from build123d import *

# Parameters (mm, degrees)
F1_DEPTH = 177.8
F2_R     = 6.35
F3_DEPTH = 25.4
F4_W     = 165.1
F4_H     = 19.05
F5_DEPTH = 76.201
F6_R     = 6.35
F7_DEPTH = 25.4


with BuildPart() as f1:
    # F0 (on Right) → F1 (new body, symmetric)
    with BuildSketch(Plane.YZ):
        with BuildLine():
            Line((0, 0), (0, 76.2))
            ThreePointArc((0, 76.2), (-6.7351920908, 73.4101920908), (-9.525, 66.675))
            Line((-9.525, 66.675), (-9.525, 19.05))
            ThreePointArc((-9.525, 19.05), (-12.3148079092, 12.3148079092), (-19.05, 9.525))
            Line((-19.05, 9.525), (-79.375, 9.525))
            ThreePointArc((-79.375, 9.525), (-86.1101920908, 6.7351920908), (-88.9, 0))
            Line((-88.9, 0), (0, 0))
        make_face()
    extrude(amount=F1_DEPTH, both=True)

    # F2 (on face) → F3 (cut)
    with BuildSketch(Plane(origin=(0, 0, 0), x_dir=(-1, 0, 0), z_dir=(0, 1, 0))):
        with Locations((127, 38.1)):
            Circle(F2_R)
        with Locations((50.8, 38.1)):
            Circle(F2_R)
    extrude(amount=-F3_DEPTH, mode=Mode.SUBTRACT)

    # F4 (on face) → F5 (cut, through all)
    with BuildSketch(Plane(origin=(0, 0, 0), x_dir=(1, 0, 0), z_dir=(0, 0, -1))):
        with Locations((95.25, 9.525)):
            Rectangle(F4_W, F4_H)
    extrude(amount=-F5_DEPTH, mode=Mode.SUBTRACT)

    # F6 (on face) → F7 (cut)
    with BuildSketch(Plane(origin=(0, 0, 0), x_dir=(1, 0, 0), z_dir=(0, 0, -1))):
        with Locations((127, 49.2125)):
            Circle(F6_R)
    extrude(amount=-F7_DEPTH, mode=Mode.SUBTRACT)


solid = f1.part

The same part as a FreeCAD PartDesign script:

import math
import FreeCAD as App
import Part
import Sketcher

V = App.Vector
Q = App.Units.Quantity

doc = App.newDocument("Part")
body = doc.addObject("PartDesign::Body", "Body")

# Sketch on YZ plane
sketch1 = doc.addObject("Sketcher::SketchObject", "Sketch")
body.addObject(sketch1)
sketch1.AttachmentSupport = (doc.YZ_Plane, [""])
sketch1.MapMode = "FlatFace"
sketch1.addGeometry([
    Part.LineSegment(V(0, 0, 0), V(0, 76, 0)),  # 0
    Part.ArcOfCircle(Part.Circle(V(0, 67, 0), V(0, 0, 1), 10), math.radians(90), math.radians(180)),  # 1
    Part.LineSegment(V(-10, 67, 0), V(-10, 19, 0)),  # 2
    Part.ArcOfCircle(Part.Circle(V(-19, 19, 0), V(0, 0, 1), 10), math.radians(-90), math.radians(0)),  # 3
    Part.LineSegment(V(-19, 10, 0), V(-79, 10, 0)),  # 4
    Part.ArcOfCircle(Part.Circle(V(-79, 0, 0), V(0, 0, 1), 10), math.radians(90), math.radians(180)),  # 5
    Part.LineSegment(V(-89, 0, 0), V(0, 0, 0)),  # 6
], False)
sketch1.addConstraint([
    Sketcher.Constraint("Coincident", 0, 2, 1, 1),
    Sketcher.Constraint("Tangent", 1, 2, 2, 1),
    Sketcher.Constraint("Tangent", 2, 2, 3, 2),
    Sketcher.Constraint("Tangent", 3, 1, 4, 1),
    Sketcher.Constraint("Tangent", 4, 2, 5, 1),
    Sketcher.Constraint("Coincident", 5, 2, 6, 1),
    Sketcher.Constraint("Coincident", 6, 2, 0, 1),
    Sketcher.Constraint("Vertical", 0),
    Sketcher.Constraint("Vertical", 2),
    Sketcher.Constraint("Horizontal", 4),
    Sketcher.Constraint("Horizontal", 6),
    Sketcher.Constraint("Coincident", 6, 2, -1, 1),
    Sketcher.Constraint("Equal", 1, 3),
    Sketcher.Constraint("Equal", 3, 5),
    Sketcher.Constraint("PointOnObject", 1, 3, -2),
    Sketcher.Constraint("PointOnObject", 5, 3, -1),
    Sketcher.Constraint("DistanceY", 0, 1, 0, 2, Q("3 in")),
    Sketcher.Constraint("DistanceX", 6, 1, 6, 2, Q("3.5 in")),
    Sketcher.Constraint("Radius", 1, Q("0.375 in")),
])
pad1 = doc.addObject("PartDesign::Pad", "Pad")
body.addObject(pad1)
pad1.Profile = sketch1
pad1.Length = Q("14 in")
pad1.Midplane = True

# Sketch on XZ plane
sketch2 = doc.addObject("Sketcher::SketchObject", "Sketch001")
body.addObject(sketch2)
sketch2.AttachmentSupport = (doc.XZ_Plane, [""])
sketch2.MapMode = "FlatFace"
sketch2.addGeometry([
    Part.Circle(V(-127, 38, 0), V(0, 0, 1), 6),
    Part.Circle(V(-51, 38, 0), V(0, 0, 1), 6),
], False)
sketch2.addConstraint([
    Sketcher.Constraint("Equal", 0, 1),
    Sketcher.Constraint("Horizontal", 0, 3, 1, 3),
    Sketcher.Constraint("Diameter", 0, Q("0.5 in")),
    Sketcher.Constraint("DistanceX", 0, 3, -1, 1, Q("5 in")),
    Sketcher.Constraint("DistanceX", 1, 3, -1, 1, Q("2 in")),
    Sketcher.Constraint("DistanceY", -1, 1, 0, 3, Q("1.5 in")),
])
pocket1 = doc.addObject("PartDesign::Pocket", "Pocket")
body.addObject(pocket1)
pocket1.Profile = sketch2
pocket1.Length = Q("1 in")
pocket1.Reversed = True

# Sketch on XY plane
sketch3 = doc.addObject("Sketcher::SketchObject", "Sketch002")
body.addObject(sketch3)
sketch3.AttachmentSupport = (doc.XY_Plane, [""])
sketch3.MapMode = "FlatFace"
sketch3.addGeometry([
    Part.LineSegment(V(13, -19, 0), V(13, 0, 0)),
    Part.LineSegment(V(13, 0, 0), V(178, 0, 0)),
    Part.LineSegment(V(178, 0, 0), V(178, -19, 0)),
    Part.LineSegment(V(178, -19, 0), V(13, -19, 0)),
], False)
sketch3.addConstraint([
    Sketcher.Constraint("Coincident", 0, 2, 1, 1),
    Sketcher.Constraint("Coincident", 1, 2, 2, 1),
    Sketcher.Constraint("Coincident", 2, 2, 3, 1),
    Sketcher.Constraint("Coincident", 3, 2, 0, 1),
    Sketcher.Constraint("Vertical", 0),
    Sketcher.Constraint("Horizontal", 1),
    Sketcher.Constraint("Vertical", 2),
    Sketcher.Constraint("Horizontal", 3),
    Sketcher.Constraint("PointOnObject", 0, 2, -1),
    Sketcher.Constraint("DistanceX", 1, 1, 1, 2, Q("6.5 in")),
    Sketcher.Constraint("DistanceX", -1, 1, 1, 2, Q("7 in")),
    Sketcher.Constraint("DistanceY", 0, 1, 0, 2, Q("0.75 in")),
])
pocket2 = doc.addObject("PartDesign::Pocket", "Pocket001")
body.addObject(pocket2)
pocket2.Profile = sketch3
pocket2.Type = "ThroughAll"
pocket2.Reversed = True

# Sketch on XY plane
sketch4 = doc.addObject("Sketcher::SketchObject", "Sketch003")
body.addObject(sketch4)
sketch4.AttachmentSupport = (doc.XY_Plane, [""])
sketch4.MapMode = "FlatFace"
sketch4.addGeometry(Part.Circle(V(127, -49, 0), V(0, 0, 1), 6), False)
sketch4.addConstraint([
    Sketcher.Constraint("Diameter", 0, Q("0.5 in")),
    Sketcher.Constraint("DistanceX", -1, 1, 0, 3, Q("5 in")),
    Sketcher.Constraint("DistanceY", 0, 3, -1, 1, Q("1.9375 in")),
])
pocket3 = doc.addObject("PartDesign::Pocket", "Pocket002")
body.addObject(pocket3)
pocket3.Profile = sketch4
pocket3.Length = Q("1 in")
pocket3.Reversed = True

doc.recompute()
